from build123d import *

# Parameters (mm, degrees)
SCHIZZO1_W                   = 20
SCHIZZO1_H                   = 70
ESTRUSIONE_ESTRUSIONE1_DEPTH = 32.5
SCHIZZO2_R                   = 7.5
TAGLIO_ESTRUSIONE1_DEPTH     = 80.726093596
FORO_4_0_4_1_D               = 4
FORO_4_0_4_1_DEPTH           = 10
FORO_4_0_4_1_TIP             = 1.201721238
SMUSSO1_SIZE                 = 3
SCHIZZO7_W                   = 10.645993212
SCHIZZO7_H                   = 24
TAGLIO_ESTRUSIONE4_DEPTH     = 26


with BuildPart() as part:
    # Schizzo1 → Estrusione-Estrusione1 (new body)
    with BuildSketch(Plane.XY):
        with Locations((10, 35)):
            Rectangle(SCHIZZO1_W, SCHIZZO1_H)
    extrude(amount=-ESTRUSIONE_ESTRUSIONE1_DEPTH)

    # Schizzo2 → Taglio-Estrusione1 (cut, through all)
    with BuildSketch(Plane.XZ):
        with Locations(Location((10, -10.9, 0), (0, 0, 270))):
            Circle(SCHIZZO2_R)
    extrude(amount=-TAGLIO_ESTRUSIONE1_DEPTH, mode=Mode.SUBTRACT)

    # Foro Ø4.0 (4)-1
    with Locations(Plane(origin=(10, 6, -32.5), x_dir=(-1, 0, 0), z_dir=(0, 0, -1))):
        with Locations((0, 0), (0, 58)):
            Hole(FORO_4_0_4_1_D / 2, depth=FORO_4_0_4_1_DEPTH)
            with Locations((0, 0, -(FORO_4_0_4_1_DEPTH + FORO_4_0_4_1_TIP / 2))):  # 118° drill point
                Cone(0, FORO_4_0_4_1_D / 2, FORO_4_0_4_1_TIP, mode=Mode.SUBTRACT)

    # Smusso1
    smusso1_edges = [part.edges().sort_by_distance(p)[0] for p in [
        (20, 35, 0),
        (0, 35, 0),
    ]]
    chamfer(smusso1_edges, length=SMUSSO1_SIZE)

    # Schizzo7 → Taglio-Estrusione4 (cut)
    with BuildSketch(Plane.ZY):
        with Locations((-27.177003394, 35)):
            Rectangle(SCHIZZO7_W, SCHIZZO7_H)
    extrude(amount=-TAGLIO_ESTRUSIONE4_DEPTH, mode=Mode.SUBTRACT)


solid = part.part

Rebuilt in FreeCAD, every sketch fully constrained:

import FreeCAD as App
import Part
import Sketcher
from FreeCAD import Vector


def edges_at(feature, points):
    """Names of the edges that pass closest to the given points."""
    edges = feature.Shape.Edges
    near = lambda p: min(range(len(edges)), key=lambda i: edges[i].distToShape(Part.Vertex(*p))[0])
    return sorted({f"Edge{near(p) + 1}" for p in points})

doc = App.newDocument("Part")
params = doc.addObject("Spreadsheet::Sheet", "Params")
for row, (alias, value) in enumerate([
    ("sketch1_width", "20 mm"),
    ("sketch1_height", "70 mm"),
    ("pad1_length", "32.5 mm"),
    ("sketch2_diameter", "15 mm"),
    ("sketch3_diameter", "4 mm"),
    ("hole_diameter", "4 mm"),
    ("hole_depth", "10 mm"),
    ("chamfer_size", "3 mm"),
    ("sketch4_width", "24 mm"),
    ("pocket2_length", "26 mm"),
], start=1):
    params.set(f"A{row}", alias)
    params.set(f"B{row}", "=" + value)
    params.setAlias(f"B{row}", alias)

body = doc.addObject("PartDesign::Body", "Body")

# Sketch on XY plane
sketch1 = body.newObject("Sketcher::SketchObject", "Sketch")
sketch1.AttachmentSupport = (doc.getObject("XY_Plane"), [""])
sketch1.MapMode = "FlatFace"
sketch1.addGeometry([
    Part.LineSegment(Vector(0, 70, 0), Vector(0, 0, 0)),
    Part.LineSegment(Vector(0, 0, 0), Vector(20, 0, 0)),
    Part.LineSegment(Vector(20, 0, 0), Vector(20, 70, 0)),
    Part.LineSegment(Vector(20, 70, 0), Vector(0, 70, 0)),
], False)
sketch1.addConstraint([
    Sketcher.Constraint("Coincident", 0, 2, 1, 1),
    Sketcher.Constraint("Coincident", 1, 2, 2, 1),
    Sketcher.Constraint("Coincident", 2, 2, 3, 1),
    Sketcher.Constraint("Coincident", 3, 2, 0, 1),
    Sketcher.Constraint("Vertical", 0),
    Sketcher.Constraint("Horizontal", 1),
    Sketcher.Constraint("Vertical", 2),
    Sketcher.Constraint("Horizontal", 3),
    Sketcher.Constraint("Coincident", 0, 2, -1, 1),
    Sketcher.Constraint("DistanceX", 1, 1, 1, 2, 20.0),
    Sketcher.Constraint("DistanceY", 0, 2, 0, 1, 70.0),
])
sketch1.setExpression("Constraints[9]", "Params.sketch1_width")
sketch1.setExpression("Constraints[10]", "Params.sketch1_height")
pad1 = body.newObject("PartDesign::Pad", "Pad")
pad1.Profile = sketch1
pad1.setExpression("Length", "Params.pad1_length")
pad1.Reversed = True

# Sketch on XZ plane
sketch2 = body.newObject("Sketcher::SketchObject", "Sketch001")
sketch2.AttachmentSupport = (doc.getObject("XZ_Plane"), [""])
sketch2.MapMode = "FlatFace"
sketch2.addGeometry(Part.Circle(Vector(10, -10.9, 0), Vector(0, 0, 1), 7.5), False)
sketch2.addConstraint([
    Sketcher.Constraint("Diameter", 0, 15.0),
    Sketcher.Constraint("DistanceX", -1, 1, 0, 3, 10.0),
    Sketcher.Constraint("DistanceY", 0, 3, -1, 1, 10.9),
])
sketch2.setExpression("Constraints[0]", "Params.sketch2_diameter")
pocket1 = body.newObject("PartDesign::Pocket", "Pocket")
pocket1.Profile = sketch2
pocket1.Type = "ThroughAll"

# Sketch on XY plane
sketch3 = body.newObject("Sketcher::SketchObject", "Sketch002")
sketch3.AttachmentSupport = (doc.getObject("XY_Plane"), [""])
sketch3.MapMode = "FlatFace"
sketch3.AttachmentOffset = App.Placement(Vector(0, 0, -32.5), App.Rotation())
sketch3.addGeometry([
    Part.Circle(Vector(10, 6, 0), Vector(0, 0, 1), 2),
    Part.Circle(Vector(10, 64, 0), Vector(0, 0, 1), 2),
], False)
sketch3.addConstraint([
    Sketcher.Constraint("Equal", 0, 1),
    Sketcher.Constraint("Vertical", 0, 3, 1, 3),
    Sketcher.Constraint("Diameter", 0, 4.0),
    Sketcher.Constraint("DistanceX", -1, 1, 0, 3, 10.0),
    Sketcher.Constraint("DistanceY", -1, 1, 0, 3, 6.0),
    Sketcher.Constraint("DistanceY", -1, 1, 1, 3, 64.0),
])
sketch3.setExpression("Constraints[2]", "Params.sketch3_diameter")
doc.recompute()
hole = body.newObject("PartDesign::Hole", "Hole")
hole.Profile = sketch3
hole.ThreadType = "None"
hole.setExpression("Diameter", "Params.hole_diameter")
hole.DepthType = "Dimension"
hole.setExpression("Depth", "Params.hole_depth")
hole.DrillPoint = "Angled"
hole.DrillPointAngle = 118
hole.Reversed = True
doc.recompute()

chamfer = body.newObject("PartDesign::Chamfer", "Chamfer")
chamfer.Base = (hole, edges_at(hole, [(20, 35, 0), (0, 35, 0)]))
chamfer.setExpression("Size", "Params.chamfer_size")

# Sketch on YZ plane
sketch4 = body.newObject("Sketcher::SketchObject", "Sketch003")
sketch4.AttachmentSupport = (doc.getObject("YZ_Plane"), [""])
sketch4.MapMode = "FlatFace"
sketch4.addGeometry([
    Part.LineSegment(Vector(47, -32.5, 0), Vector(23, -32.5, 0)),
    Part.LineSegment(Vector(23, -32.5, 0), Vector(23, -21.854007, 0)),
    Part.LineSegment(Vector(23, -21.854007, 0), Vector(47, -21.854007, 0)),
    Part.LineSegment(Vector(47, -21.854007, 0), Vector(47, -32.5, 0)),
], False)
sketch4.addConstraint([
    Sketcher.Constraint("Coincident", 0, 2, 1, 1),
    Sketcher.Constraint("Coincident", 1, 2, 2, 1),
    Sketcher.Constraint("Coincident", 2, 2, 3, 1),
    Sketcher.Constraint("Coincident", 3, 2, 0, 1),
    Sketcher.Constraint("Horizontal", 0),
    Sketcher.Constraint("Vertical", 1),
    Sketcher.Constraint("Horizontal", 2),
    Sketcher.Constraint("Vertical", 3),
    Sketcher.Constraint("DistanceX", 0, 2, 0, 1, 24.0),
    Sketcher.Constraint("DistanceX", -1, 1, 0, 2, 23.0),
    Sketcher.Constraint("DistanceY", 0, 2, -1, 1, 32.5),
    Sketcher.Constraint("DistanceY", 1, 1, 1, 2, 10.645993),
])
sketch4.setExpression("Constraints[8]", "Params.sketch4_width")
pocket2 = body.newObject("PartDesign::Pocket", "Pocket001")
pocket2.Profile = sketch4
pocket2.setExpression("Length", "Params.pocket2_length")
pocket2.Reversed = True

doc.recompute()
